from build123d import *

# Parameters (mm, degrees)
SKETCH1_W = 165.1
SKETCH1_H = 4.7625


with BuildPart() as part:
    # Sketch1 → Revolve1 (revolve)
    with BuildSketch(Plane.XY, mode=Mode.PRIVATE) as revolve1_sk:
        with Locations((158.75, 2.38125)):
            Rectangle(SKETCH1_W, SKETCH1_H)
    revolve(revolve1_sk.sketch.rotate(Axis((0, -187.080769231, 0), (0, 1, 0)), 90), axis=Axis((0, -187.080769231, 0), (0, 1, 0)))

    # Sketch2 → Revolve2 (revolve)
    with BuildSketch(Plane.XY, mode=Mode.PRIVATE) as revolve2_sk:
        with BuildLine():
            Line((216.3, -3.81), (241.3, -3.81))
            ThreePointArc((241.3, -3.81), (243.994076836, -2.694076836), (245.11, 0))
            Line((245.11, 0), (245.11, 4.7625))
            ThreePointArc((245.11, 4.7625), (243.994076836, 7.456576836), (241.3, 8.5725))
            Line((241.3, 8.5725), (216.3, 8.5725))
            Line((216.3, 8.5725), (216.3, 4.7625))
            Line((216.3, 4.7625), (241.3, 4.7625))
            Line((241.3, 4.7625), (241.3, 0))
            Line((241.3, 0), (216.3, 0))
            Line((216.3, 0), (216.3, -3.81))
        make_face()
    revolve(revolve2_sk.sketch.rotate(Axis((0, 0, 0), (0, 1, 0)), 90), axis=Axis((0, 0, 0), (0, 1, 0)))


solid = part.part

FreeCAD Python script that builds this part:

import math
import FreeCAD as App
import Part
import Sketcher
from FreeCAD import Vector
Q = App.Units.Quantity


def add_polygon(sketch, points):
    """Adds a closed chain of lines whose ends are joined by coincident constraints."""
    first, n = sketch.GeometryCount, len(points)
    for a, b in zip(points, points[1:] + points[:1]):
        sketch.addGeometry(Part.LineSegment(App.Vector(*a, 0), App.Vector(*b, 0)), False)
    for i in range(n):
        sketch.addConstraint(Sketcher.Constraint("Coincident", first + i, 2, first + (i + 1) % n, 1))

doc = App.newDocument("Part")
body = doc.addObject("PartDesign::Body", "Body")

sketch1 = doc.addObject("Sketcher::SketchObject", "Sketch")
body.addObject(sketch1)
sketch1.AttachmentSupport = (doc.XY_Plane, [""])
sketch1.MapMode = "FlatFace"
add_polygon(sketch1, [(76.2, 4.8), (76.2, 0), (241.3, 0), (241.3, 4.8)])
sketch1.addConstraint(Sketcher.Constraint("Vertical", 0))
sketch1.addConstraint(Sketcher.Constraint("Horizontal", 1))
sketch1.addConstraint(Sketcher.Constraint("Vertical", 2))
sketch1.addConstraint(Sketcher.Constraint("Horizontal", 3))
sketch1.addConstraint(Sketcher.Constraint("PointOnObject", 0, 2, -1))
sketch1.addConstraint(Sketcher.Constraint("DistanceX", 1, 1, 1, 2, Q("6.5 in")))
sketch1.addConstraint(Sketcher.Constraint("DistanceX", -1, 1, 0, 2, Q("3 in")))
sketch1.addConstraint(Sketcher.Constraint("DistanceY", 0, 2, 0, 1, Q("0.1875 in")))
revolution = doc.addObject("PartDesign::Revolution", "Revolution")
body.addObject(revolution)
revolution.Profile = sketch1
revolution.ReferenceAxis = (sketch1, ["V_Axis"])
revolution.Angle = 360

sketch2 = doc.addObject("Sketcher::SketchObject", "Sketch001")
body.addObject(sketch2)
sketch2.AttachmentSupport = (doc.XY_Plane, [""])
sketch2.MapMode = "FlatFace"
sketch2.addGeometry(Part.LineSegment(Vector(216.3, -3.8, 0), Vector(241.3, -3.8, 0)), False)
sketch2.addGeometry(Part.ArcOfCircle(Part.Circle(Vector(241.3, 0, 0), Vector(0, 0, 1), 3.8), math.radians(-90), math.radians(0)), False)
sketch2.addGeometry(Part.LineSegment(Vector(245.1, 0, 0), Vector(245.1, 4.8, 0)), False)
sketch2.addGeometry(Part.ArcOfCircle(Part.Circle(Vector(241.3, 4.8, 0), Vector(0, 0, 1), 3.8), math.radians(0), math.radians(90)), False)
sketch2.addGeometry(Part.LineSegment(Vector(241.3, 8.6, 0), Vector(216.3, 8.6, 0)), False)
sketch2.addGeometry(Part.LineSegment(Vector(216.3, 8.6, 0), Vector(216.3, 4.8, 0)), False)
sketch2.addGeometry(Part.LineSegment(Vector(216.3, 4.8, 0), Vector(241.3, 4.8, 0)), False)
sketch2.addGeometry(Part.LineSegment(Vector(241.3, 4.8, 0), Vector(241.3, 0, 0)), False)
sketch2.addGeometry(Part.LineSegment(Vector(241.3, 0, 0), Vector(216.3, 0, 0)), False)
sketch2.addGeometry(Part.LineSegment(Vector(216.3, 0, 0), Vector(216.3, -3.8, 0)), False)
sketch2.addConstraint(Sketcher.Constraint("Tangent", 0, 2, 1, 1))
sketch2.addConstraint(Sketcher.Constraint("Tangent", 1, 2, 2, 1))
sketch2.addConstraint(Sketcher.Constraint("Tangent", 2, 2, 3, 1))
sketch2.addConstraint(Sketcher.Constraint("Tangent", 3, 2, 4, 1))
sketch2.addConstraint(Sketcher.Constraint("Coincident", 4, 2, 5, 1))
sketch2.addConstraint(Sketcher.Constraint("Coincident", 5, 2, 6, 1))
sketch2.addConstraint(Sketcher.Constraint("Coincident", 6, 2, 7, 1))
sketch2.addConstraint(Sketcher.Constraint("Coincident", 7, 2, 8, 1))
sketch2.addConstraint(Sketcher.Constraint("Coincident", 8, 2, 9, 1))
sketch2.addConstraint(Sketcher.Constraint("Coincident", 9, 2, 0, 1))
sketch2.addConstraint(Sketcher.Constraint("Horizontal", 0))
sketch2.addConstraint(Sketcher.Constraint("Vertical", 2))
sketch2.addConstraint(Sketcher.Constraint("Horizontal", 4))
sketch2.addConstraint(Sketcher.Constraint("Vertical", 5))
sketch2.addConstraint(Sketcher.Constraint("Horizontal", 6))
sketch2.addConstraint(Sketcher.Constraint("Vertical", 7))
sketch2.addConstraint(Sketcher.Constraint("Horizontal", 8))
sketch2.addConstraint(Sketcher.Constraint("Vertical", 9))
sketch2.addConstraint(Sketcher.Constraint("Coincident", 6, 2, 3, 3))
sketch2.addConstraint(Sketcher.Constraint("Coincident", 7, 2, 1, 3))
sketch2.addConstraint(Sketcher.Constraint("PointOnObject", 1, 3, -1))
sketch2.addConstraint(Sketcher.Constraint("Vertical", 5, 2, 8, 2))
sketch2.addConstraint(Sketcher.Constraint("Radius", 1, Q("0.15 in")))
sketch2.addConstraint(Sketcher.Constraint("DistanceX", -1, 1, 1, 3, Q("9.5 in")))
sketch2.addConstraint(Sketcher.Constraint("DistanceY", 2, 1, 2, 2, Q("0.1875 in")))
sketch2.addConstraint(Sketcher.Constraint("DistanceX", 0, 1, 0, 2, 25.0))
revolution2 = doc.addObject("PartDesign::Revolution", "Revolution001")
body.addObject(revolution2)
revolution2.Profile = sketch2
revolution2.ReferenceAxis = (sketch2, ["V_Axis"])
revolution2.Angle = 360

doc.recompute()
